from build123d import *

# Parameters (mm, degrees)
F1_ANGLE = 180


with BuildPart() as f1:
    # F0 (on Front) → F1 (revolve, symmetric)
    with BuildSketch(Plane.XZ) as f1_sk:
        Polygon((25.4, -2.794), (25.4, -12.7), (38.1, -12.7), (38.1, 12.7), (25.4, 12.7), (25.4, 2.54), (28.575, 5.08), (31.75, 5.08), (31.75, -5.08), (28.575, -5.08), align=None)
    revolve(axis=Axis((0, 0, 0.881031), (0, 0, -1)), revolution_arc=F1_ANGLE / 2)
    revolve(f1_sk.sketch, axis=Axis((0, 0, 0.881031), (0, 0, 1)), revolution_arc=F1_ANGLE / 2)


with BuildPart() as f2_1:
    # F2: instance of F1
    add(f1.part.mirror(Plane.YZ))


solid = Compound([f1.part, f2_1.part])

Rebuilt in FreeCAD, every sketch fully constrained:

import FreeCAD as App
import Part
import Sketcher
from FreeCAD import Vector
Q = App.Units.Quantity

doc = App.newDocument("Part")
params = doc.addObject("Spreadsheet::Sheet", "Params")
for row, (alias, value) in enumerate([
    ("sketch1_height", "1 in"),
    ("sketch1_width", "0.5 in"),
    ("sketch1_height2", "0.4 in"),
    ("sketch1_height3", "0.39 in"),
    ("sketch1_width2", "0.125 in"),
    ("revolution_angle", "90 deg"),
    ("sketch2_height", "1 in"),
    ("sketch2_width", "0.5 in"),
    ("sketch2_height2", "0.4 in"),
    ("sketch2_height3", "0.39 in"),
    ("sketch2_width2", "0.125 in"),
    ("revolution2_angle", "90 deg"),
], start=1):
    params.set(f"A{row}", alias)
    params.set(f"B{row}", "=" + value)
    params.setAlias(f"B{row}", alias)

body = doc.addObject("PartDesign::Body", "Body")

# Sketch on XZ plane
sketch1 = body.newObject("Sketcher::SketchObject", "Sketch")
sketch1.AttachmentSupport = (doc.getObject("XZ_Plane"), [""])
sketch1.MapMode = "FlatFace"
sketch1.addGeometry(Part.LineSegment(Vector(25.4, -2.8, 0), Vector(25.4, -12.7, 0)), False)
sketch1.addGeometry(Part.LineSegment(Vector(25.4, -12.7, 0), Vector(38.1, -12.7, 0)), False)
sketch1.addGeometry(Part.LineSegment(Vector(38.1, -12.7, 0), Vector(38.1, 12.7, 0)), False)
sketch1.addGeometry(Part.LineSegment(Vector(38.1, 12.7, 0), Vector(25.4, 12.7, 0)), False)
sketch1.addGeometry(Part.LineSegment(Vector(25.4, 12.7, 0), Vector(25.4, 2.5, 0)), False)
sketch1.addGeometry(Part.LineSegment(Vector(25.4, 2.5, 0), Vector(28.6, 5.1, 0)), False)
sketch1.addGeometry(Part.LineSegment(Vector(28.6, 5.1, 0), Vector(31.8, 5.1, 0)), False)
sketch1.addGeometry(Part.LineSegment(Vector(31.8, 5.1, 0), Vector(31.8, -5.1, 0)), False)
sketch1.addGeometry(Part.LineSegment(Vector(31.8, -5.1, 0), Vector(28.6, -5.1, 0)), False)
sketch1.addGeometry(Part.LineSegment(Vector(28.6, -5.1, 0), Vector(25.4, -2.8, 0)), False)
sketch1.addConstraint(Sketcher.Constraint("Coincident", 0, 2, 1, 1))
sketch1.addConstraint(Sketcher.Constraint("Coincident", 1, 2, 2, 1))
sketch1.addConstraint(Sketcher.Constraint("Coincident", 2, 2, 3, 1))
sketch1.addConstraint(Sketcher.Constraint("Coincident", 3, 2, 4, 1))
sketch1.addConstraint(Sketcher.Constraint("Coincident", 4, 2, 5, 1))
sketch1.addConstraint(Sketcher.Constraint("Coincident", 5, 2, 6, 1))
sketch1.addConstraint(Sketcher.Constraint("Coincident", 6, 2, 7, 1))
sketch1.addConstraint(Sketcher.Constraint("Coincident", 7, 2, 8, 1))
sketch1.addConstraint(Sketcher.Constraint("Coincident", 8, 2, 9, 1))
sketch1.addConstraint(Sketcher.Constraint("Coincident", 9, 2, 0, 1))
sketch1.addConstraint(Sketcher.Constraint("Vertical", 0))
sketch1.addConstraint(Sketcher.Constraint("Horizontal", 1))
sketch1.addConstraint(Sketcher.Constraint("Vertical", 2))
sketch1.addConstraint(Sketcher.Constraint("Horizontal", 3))
sketch1.addConstraint(Sketcher.Constraint("Vertical", 4))
sketch1.addConstraint(Sketcher.Constraint("Horizontal", 6))
sketch1.addConstraint(Sketcher.Constraint("Vertical", 7))
sketch1.addConstraint(Sketcher.Constraint("Horizontal", 8))
sketch1.addConstraint(Sketcher.Constraint("Symmetric", 0, 2, 3, 2, -1))
sketch1.addConstraint(Sketcher.Constraint("Symmetric", 5, 2, 8, 2, -1))
sketch1.addConstraint(Sketcher.Constraint("Equal", 4, 7))
sketch1.addConstraint(Sketcher.Constraint("DistanceY", 2, 1, 2, 2, Q("1 in")))
sketch1.addConstraint(Sketcher.Constraint("DistanceX", 1, 1, 1, 2, Q("0.5 in")))
sketch1.addConstraint(Sketcher.Constraint("DistanceY", 4, 2, 4, 1, Q("0.4 in")))
sketch1.addConstraint(Sketcher.Constraint("DistanceX", -1, 1, 0, 2, Q("1 in")))
sketch1.addConstraint(Sketcher.Constraint("DistanceY", 0, 2, 0, 1, Q("0.39 in")))
sketch1.addConstraint(Sketcher.Constraint("DistanceX", 6, 1, 6, 2, Q("0.125 in")))
sketch1.addConstraint(Sketcher.Constraint("DistanceX", -1, 1, 6, 2, Q("1.25 in")))
sketch1.setExpression("Constraints[21]", "Params.sketch1_height")
sketch1.setExpression("Constraints[22]", "Params.sketch1_width")
sketch1.setExpression("Constraints[23]", "Params.sketch1_height2")
sketch1.setExpression("Constraints[25]", "Params.sketch1_height3")
sketch1.setExpression("Constraints[26]", "Params.sketch1_width2")
revolution = body.newObject("PartDesign::Revolution", "Revolution")
revolution.Profile = sketch1
revolution.ReferenceAxis = (sketch1, ["V_Axis"])
revolution.setExpression("Angle", "Params.revolution_angle")
revolution.Reversed = True

# Sketch on XZ plane
sketch2 = body.newObject("Sketcher::SketchObject", "Sketch001")
sketch2.AttachmentSupport = (doc.getObject("XZ_Plane"), [""])
sketch2.MapMode = "FlatFace"
sketch2.addGeometry(Part.LineSegment(Vector(25.4, -2.8, 0), Vector(25.4, -12.7, 0)), False)
sketch2.addGeometry(Part.LineSegment(Vector(25.4, -12.7, 0), Vector(38.1, -12.7, 0)), False)
sketch2.addGeometry(Part.LineSegment(Vector(38.1, -12.7, 0), Vector(38.1, 12.7, 0)), False)
sketch2.addGeometry(Part.LineSegment(Vector(38.1, 12.7, 0), Vector(25.4, 12.7, 0)), False)
sketch2.addGeometry(Part.LineSegment(Vector(25.4, 12.7, 0), Vector(25.4, 2.5, 0)), False)
sketch2.addGeometry(Part.LineSegment(Vector(25.4, 2.5, 0), Vector(28.6, 5.1, 0)), False)
sketch2.addGeometry(Part.LineSegment(Vector(28.6, 5.1, 0), Vector(31.8, 5.1, 0)), False)
sketch2.addGeometry(Part.LineSegment(Vector(31.8, 5.1, 0), Vector(31.8, -5.1, 0)), False)
sketch2.addGeometry(Part.LineSegment(Vector(31.8, -5.1, 0), Vector(28.6, -5.1, 0)), False)
sketch2.addGeometry(Part.LineSegment(Vector(28.6, -5.1, 0), Vector(25.4, -2.8, 0)), False)
sketch2.addConstraint(Sketcher.Constraint("Coincident", 0, 2, 1, 1))
sketch2.addConstraint(Sketcher.Constraint("Coincident", 1, 2, 2, 1))
sketch2.addConstraint(Sketcher.Constraint("Coincident", 2, 2, 3, 1))
sketch2.addConstraint(Sketcher.Constraint("Coincident", 3, 2, 4, 1))
sketch2.addConstraint(Sketcher.Constraint("Coincident", 4, 2, 5, 1))
sketch2.addConstraint(Sketcher.Constraint("Coincident", 5, 2, 6, 1))
sketch2.addConstraint(Sketcher.Constraint("Coincident", 6, 2, 7, 1))
sketch2.addConstraint(Sketcher.Constraint("Coincident", 7, 2, 8, 1))
sketch2.addConstraint(Sketcher.Constraint("Coincident", 8, 2, 9, 1))
sketch2.addConstraint(Sketcher.Constraint("Coincident", 9, 2, 0, 1))
sketch2.addConstraint(Sketcher.Constraint("Vertical", 0))
sketch2.addConstraint(Sketcher.Constraint("Horizontal", 1))
sketch2.addConstraint(Sketcher.Constraint("Vertical", 2))
sketch2.addConstraint(Sketcher.Constraint("Horizontal", 3))
sketch2.addConstraint(Sketcher.Constraint("Vertical", 4))
sketch2.addConstraint(Sketcher.Constraint("Horizontal", 6))
sketch2.addConstraint(Sketcher.Constraint("Vertical", 7))
sketch2.addConstraint(Sketcher.Constraint("Horizontal", 8))
sketch2.addConstraint(Sketcher.Constraint("Symmetric", 0, 2, 3, 2, -1))
sketch2.addConstraint(Sketcher.Constraint("Symmetric", 5, 2, 8, 2, -1))
sketch2.addConstraint(Sketcher.Constraint("Equal", 4, 7))
sketch2.addConstraint(Sketcher.Constraint("DistanceY", 2, 1, 2, 2, Q("1 in")))
sketch2.addConstraint(Sketcher.Constraint("DistanceX", 1, 1, 1, 2, Q("0.5 in")))
sketch2.addConstraint(Sketcher.Constraint("DistanceY", 4, 2, 4, 1, Q("0.4 in")))
sketch2.addConstraint(Sketcher.Constraint("DistanceX", -1, 1, 0, 2, Q("1 in")))
sketch2.addConstraint(Sketcher.Constraint("DistanceY", 0, 2, 0, 1, Q("0.39 in")))
sketch2.addConstraint(Sketcher.Constraint("DistanceX", 6, 1, 6, 2, Q("0.125 in")))
sketch2.addConstraint(Sketcher.Constraint("DistanceX", -1, 1, 6, 2, Q("1.25 in")))
sketch2.setExpression("Constraints[21]", "Params.sketch2_height")
sketch2.setExpression("Constraints[22]", "Params.sketch2_width")
sketch2.setExpression("Constraints[23]", "Params.sketch2_height2")
sketch2.setExpression("Constraints[25]", "Params.sketch2_height3")
sketch2.setExpression("Constraints[26]", "Params.sketch2_width2")
revolution2 = body.newObject("PartDesign::Revolution", "Revolution001")
revolution2.Profile = sketch2
revolution2.ReferenceAxis = (sketch2, ["V_Axis"])
revolution2.setExpression("Angle", "Params.revolution2_angle")
body2 = doc.addObject("PartDesign::Body", "Body001")
doc.recompute()

mirroring = doc.addObject("Part::Mirroring", "Mirroring")
mirroring.Source = body
mirroring.Base = Vector(0, 0, 0)
mirroring.Normal = Vector(1, 0, 0)
body2.BaseFeature = mirroring
doc.recompute()
mirroring.Visibility = False

doc.recompute()
